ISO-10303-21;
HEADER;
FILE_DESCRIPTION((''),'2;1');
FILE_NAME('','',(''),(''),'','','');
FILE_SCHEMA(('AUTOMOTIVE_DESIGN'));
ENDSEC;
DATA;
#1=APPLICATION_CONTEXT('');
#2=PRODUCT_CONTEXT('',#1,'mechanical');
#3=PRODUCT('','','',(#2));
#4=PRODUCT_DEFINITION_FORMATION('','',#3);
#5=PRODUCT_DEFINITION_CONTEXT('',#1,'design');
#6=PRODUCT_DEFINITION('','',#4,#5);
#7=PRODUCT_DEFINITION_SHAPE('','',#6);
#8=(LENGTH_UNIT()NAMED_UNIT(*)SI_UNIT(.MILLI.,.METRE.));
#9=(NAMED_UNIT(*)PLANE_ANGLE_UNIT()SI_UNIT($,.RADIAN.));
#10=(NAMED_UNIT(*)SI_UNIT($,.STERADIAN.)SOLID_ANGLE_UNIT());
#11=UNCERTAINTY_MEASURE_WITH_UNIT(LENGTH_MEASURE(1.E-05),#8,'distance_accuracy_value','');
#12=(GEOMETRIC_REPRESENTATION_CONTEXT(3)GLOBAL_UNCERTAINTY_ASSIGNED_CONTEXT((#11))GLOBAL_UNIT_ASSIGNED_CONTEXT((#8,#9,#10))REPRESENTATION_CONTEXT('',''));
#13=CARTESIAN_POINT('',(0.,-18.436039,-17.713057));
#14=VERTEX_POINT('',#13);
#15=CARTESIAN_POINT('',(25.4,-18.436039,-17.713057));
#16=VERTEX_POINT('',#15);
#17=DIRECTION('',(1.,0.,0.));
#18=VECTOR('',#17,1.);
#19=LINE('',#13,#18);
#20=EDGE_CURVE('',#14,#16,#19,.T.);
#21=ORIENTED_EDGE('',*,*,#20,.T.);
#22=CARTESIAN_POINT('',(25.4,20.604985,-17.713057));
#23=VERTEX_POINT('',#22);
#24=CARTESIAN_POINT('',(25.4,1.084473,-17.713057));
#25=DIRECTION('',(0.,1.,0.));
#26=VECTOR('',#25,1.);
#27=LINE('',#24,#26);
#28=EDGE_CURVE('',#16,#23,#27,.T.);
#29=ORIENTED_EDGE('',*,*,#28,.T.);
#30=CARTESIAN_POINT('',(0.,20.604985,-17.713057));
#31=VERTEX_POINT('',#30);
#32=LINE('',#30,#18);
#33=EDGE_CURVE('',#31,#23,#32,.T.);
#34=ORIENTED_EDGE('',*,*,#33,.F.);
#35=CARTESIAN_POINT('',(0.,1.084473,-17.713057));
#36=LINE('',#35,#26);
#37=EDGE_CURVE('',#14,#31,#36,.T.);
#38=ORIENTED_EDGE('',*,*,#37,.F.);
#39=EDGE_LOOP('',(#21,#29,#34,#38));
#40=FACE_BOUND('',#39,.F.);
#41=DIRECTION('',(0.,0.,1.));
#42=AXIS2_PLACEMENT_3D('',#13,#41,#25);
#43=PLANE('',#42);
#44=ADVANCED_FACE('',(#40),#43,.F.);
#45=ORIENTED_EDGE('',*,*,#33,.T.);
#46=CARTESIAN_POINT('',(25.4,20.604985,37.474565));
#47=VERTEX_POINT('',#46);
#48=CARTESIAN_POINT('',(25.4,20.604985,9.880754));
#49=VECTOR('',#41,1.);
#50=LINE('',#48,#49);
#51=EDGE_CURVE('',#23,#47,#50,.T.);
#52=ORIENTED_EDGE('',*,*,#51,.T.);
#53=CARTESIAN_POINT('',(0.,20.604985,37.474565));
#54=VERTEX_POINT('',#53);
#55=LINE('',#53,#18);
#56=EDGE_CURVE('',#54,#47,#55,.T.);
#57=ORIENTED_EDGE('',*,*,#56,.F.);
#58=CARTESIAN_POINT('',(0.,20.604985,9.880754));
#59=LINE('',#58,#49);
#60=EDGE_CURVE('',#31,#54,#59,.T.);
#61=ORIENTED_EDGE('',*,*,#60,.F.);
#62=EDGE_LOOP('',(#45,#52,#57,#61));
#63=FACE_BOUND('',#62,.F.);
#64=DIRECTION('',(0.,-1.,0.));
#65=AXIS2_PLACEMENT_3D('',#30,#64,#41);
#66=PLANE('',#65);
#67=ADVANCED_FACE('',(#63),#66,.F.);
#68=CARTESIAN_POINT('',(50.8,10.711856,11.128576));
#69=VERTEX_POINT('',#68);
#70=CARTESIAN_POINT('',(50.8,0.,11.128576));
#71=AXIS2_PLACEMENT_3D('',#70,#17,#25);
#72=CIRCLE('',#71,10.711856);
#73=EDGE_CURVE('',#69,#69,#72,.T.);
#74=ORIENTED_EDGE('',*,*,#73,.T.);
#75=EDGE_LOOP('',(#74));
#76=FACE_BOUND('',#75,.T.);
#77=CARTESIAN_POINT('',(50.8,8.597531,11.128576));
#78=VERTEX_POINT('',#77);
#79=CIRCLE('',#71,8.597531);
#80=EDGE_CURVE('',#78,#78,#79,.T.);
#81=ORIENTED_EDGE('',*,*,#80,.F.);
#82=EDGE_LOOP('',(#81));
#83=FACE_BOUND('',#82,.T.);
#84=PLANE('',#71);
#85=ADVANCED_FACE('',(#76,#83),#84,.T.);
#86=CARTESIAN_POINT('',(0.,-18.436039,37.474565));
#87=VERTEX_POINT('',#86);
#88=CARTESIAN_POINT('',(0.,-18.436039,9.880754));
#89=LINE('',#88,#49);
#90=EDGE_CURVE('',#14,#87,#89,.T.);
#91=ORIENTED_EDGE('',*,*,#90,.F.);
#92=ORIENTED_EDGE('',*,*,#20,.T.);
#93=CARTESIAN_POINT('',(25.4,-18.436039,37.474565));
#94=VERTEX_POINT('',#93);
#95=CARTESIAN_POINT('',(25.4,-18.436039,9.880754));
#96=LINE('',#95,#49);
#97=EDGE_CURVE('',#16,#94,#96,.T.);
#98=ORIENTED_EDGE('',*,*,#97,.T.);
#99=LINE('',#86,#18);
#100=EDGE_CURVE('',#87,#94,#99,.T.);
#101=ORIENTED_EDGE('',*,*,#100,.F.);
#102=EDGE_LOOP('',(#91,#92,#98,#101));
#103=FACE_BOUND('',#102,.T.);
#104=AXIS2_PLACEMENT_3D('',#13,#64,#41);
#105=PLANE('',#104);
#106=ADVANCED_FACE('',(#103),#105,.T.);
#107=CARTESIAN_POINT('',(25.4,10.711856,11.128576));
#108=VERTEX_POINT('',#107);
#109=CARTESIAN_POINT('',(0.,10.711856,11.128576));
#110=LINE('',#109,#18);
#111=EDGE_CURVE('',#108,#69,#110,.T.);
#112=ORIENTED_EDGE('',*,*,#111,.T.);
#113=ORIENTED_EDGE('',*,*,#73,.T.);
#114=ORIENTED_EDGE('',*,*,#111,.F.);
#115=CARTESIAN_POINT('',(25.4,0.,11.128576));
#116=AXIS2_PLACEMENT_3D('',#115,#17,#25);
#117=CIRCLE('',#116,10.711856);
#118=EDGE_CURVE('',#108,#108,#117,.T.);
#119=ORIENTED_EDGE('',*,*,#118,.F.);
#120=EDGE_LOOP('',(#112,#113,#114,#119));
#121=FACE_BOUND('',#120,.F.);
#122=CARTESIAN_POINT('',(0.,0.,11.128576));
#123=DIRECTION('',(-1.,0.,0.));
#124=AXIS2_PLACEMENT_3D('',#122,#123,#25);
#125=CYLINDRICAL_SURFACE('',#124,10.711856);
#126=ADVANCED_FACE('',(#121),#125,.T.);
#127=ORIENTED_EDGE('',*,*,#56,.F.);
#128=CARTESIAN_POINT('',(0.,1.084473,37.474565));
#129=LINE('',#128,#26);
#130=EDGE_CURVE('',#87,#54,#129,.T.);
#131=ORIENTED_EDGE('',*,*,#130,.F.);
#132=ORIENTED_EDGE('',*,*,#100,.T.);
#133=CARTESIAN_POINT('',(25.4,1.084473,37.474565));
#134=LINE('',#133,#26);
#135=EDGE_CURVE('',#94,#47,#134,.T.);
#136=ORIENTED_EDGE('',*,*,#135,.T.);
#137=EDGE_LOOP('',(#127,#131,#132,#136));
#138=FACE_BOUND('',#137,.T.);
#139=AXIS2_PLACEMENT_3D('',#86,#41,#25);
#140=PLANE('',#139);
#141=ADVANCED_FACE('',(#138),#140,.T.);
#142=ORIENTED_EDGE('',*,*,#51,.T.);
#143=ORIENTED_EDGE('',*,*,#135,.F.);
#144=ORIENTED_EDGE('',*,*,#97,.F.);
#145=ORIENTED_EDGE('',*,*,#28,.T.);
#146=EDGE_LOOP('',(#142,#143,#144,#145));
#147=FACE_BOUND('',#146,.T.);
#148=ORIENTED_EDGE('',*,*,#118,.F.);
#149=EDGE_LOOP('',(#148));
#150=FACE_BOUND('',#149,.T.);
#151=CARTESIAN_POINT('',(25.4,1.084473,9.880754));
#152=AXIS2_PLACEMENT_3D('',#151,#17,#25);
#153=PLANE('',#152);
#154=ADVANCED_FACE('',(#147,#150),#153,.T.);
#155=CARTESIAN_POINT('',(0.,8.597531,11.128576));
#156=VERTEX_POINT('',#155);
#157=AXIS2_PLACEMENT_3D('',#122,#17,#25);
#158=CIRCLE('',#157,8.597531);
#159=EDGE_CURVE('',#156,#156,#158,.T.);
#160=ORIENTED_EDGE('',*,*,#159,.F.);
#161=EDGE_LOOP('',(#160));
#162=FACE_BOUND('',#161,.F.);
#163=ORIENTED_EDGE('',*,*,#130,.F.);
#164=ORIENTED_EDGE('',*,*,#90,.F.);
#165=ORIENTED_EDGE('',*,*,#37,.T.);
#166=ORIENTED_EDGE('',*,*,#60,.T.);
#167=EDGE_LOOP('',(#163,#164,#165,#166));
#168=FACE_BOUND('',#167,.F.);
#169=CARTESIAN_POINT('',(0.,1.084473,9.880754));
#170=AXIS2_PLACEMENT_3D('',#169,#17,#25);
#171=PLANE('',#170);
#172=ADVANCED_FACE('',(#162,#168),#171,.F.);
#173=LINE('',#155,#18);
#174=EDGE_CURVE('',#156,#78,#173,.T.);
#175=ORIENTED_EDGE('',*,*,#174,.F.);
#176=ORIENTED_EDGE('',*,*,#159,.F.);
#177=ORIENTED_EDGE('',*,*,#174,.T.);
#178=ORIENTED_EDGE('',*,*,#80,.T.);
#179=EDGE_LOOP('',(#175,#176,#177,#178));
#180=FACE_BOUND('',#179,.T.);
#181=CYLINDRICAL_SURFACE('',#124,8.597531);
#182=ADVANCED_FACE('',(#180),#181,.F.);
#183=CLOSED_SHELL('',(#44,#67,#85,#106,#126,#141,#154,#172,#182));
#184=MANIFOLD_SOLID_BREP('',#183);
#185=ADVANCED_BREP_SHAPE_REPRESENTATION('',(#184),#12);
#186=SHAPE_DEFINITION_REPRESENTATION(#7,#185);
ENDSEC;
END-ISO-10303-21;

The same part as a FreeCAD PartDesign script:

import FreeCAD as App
import Part
import Sketcher

V = App.Vector
Q = App.Units.Quantity


def add_polygon(sketch, points):
    """Adds a closed chain of lines whose ends are joined by coincident constraints."""
    first, n = sketch.GeometryCount, len(points)
    for a, b in zip(points, points[1:] + points[:1]):
        sketch.addGeometry(Part.LineSegment(App.Vector(*a, 0), App.Vector(*b, 0)), False)
    for i in range(n):
        sketch.addConstraint(Sketcher.Constraint("Coincident", first + i, 2, first + (i + 1) % n, 1))

doc = App.newDocument("Part")
body = doc.addObject("PartDesign::Body", "Body")

# Sketch on YZ plane
sketch1 = body.newObject("Sketcher::SketchObject", "Sketch")
sketch1.AttachmentSupport = (doc.getObject("YZ_Plane"), [""])
sketch1.MapMode = "FlatFace"
sketch1.addGeometry(Part.Circle(V(0, 11, 0), V(0, 0, 1), 11), False)
sketch1.addGeometry(Part.Circle(V(0, 11, 0), V(0, 0, 1), 9), False)
sketch1.addConstraint(Sketcher.Constraint("Coincident", 1, 3, 0, 3))
sketch1.addConstraint(Sketcher.Constraint("PointOnObject", 0, 3, -2))
sketch1.addConstraint(Sketcher.Constraint("Diameter", 0, 21.423712))
sketch1.addConstraint(Sketcher.Constraint("Diameter", 1, 17.195062))
sketch1.addConstraint(Sketcher.Constraint("DistanceY", -1, 1, 0, 3, 11.128576))
pad1 = body.newObject("PartDesign::Pad", "Pad")
pad1.Profile = sketch1
pad1.Length = Q("2 in")

# Sketch on YZ plane
sketch2 = body.newObject("Sketcher::SketchObject", "Sketch001")
sketch2.AttachmentSupport = (doc.getObject("YZ_Plane"), [""])
sketch2.MapMode = "FlatFace"
add_polygon(sketch2, [(-18, 37), (-18, -18), (21, -18), (21, 37)])  # lines 0-3
sketch2.addGeometry(Part.Circle(V(0, 11, 0), V(0, 0, 1), 11), False)  # 4
sketch2.addConstraint(Sketcher.Constraint("Vertical", 0))
sketch2.addConstraint(Sketcher.Constraint("Horizontal", 1))
sketch2.addConstraint(Sketcher.Constraint("Vertical", 2))
sketch2.addConstraint(Sketcher.Constraint("Horizontal", 3))
sketch2.addConstraint(Sketcher.Constraint("PointOnObject", 4, 3, -2))
sketch2.addConstraint(Sketcher.Constraint("Diameter", 4, 21.423712))
sketch2.addConstraint(Sketcher.Constraint("DistanceY", 0, 2, 0, 1, 55.187622))
sketch2.addConstraint(Sketcher.Constraint("DistanceX", 1, 1, 1, 2, 39.041024))
sketch2.addConstraint(Sketcher.Constraint("DistanceX", 0, 2, -1, 1, 18.436039))
sketch2.addConstraint(Sketcher.Constraint("DistanceY", 4, 3, 2, 2, 26.345989))
sketch2.addConstraint(Sketcher.Constraint("DistanceY", -1, 1, 4, 3, 11.128576))
pad2 = body.newObject("PartDesign::Pad", "Pad001")
pad2.Profile = sketch2
pad2.Length = Q("1 in")

doc.recompute()
